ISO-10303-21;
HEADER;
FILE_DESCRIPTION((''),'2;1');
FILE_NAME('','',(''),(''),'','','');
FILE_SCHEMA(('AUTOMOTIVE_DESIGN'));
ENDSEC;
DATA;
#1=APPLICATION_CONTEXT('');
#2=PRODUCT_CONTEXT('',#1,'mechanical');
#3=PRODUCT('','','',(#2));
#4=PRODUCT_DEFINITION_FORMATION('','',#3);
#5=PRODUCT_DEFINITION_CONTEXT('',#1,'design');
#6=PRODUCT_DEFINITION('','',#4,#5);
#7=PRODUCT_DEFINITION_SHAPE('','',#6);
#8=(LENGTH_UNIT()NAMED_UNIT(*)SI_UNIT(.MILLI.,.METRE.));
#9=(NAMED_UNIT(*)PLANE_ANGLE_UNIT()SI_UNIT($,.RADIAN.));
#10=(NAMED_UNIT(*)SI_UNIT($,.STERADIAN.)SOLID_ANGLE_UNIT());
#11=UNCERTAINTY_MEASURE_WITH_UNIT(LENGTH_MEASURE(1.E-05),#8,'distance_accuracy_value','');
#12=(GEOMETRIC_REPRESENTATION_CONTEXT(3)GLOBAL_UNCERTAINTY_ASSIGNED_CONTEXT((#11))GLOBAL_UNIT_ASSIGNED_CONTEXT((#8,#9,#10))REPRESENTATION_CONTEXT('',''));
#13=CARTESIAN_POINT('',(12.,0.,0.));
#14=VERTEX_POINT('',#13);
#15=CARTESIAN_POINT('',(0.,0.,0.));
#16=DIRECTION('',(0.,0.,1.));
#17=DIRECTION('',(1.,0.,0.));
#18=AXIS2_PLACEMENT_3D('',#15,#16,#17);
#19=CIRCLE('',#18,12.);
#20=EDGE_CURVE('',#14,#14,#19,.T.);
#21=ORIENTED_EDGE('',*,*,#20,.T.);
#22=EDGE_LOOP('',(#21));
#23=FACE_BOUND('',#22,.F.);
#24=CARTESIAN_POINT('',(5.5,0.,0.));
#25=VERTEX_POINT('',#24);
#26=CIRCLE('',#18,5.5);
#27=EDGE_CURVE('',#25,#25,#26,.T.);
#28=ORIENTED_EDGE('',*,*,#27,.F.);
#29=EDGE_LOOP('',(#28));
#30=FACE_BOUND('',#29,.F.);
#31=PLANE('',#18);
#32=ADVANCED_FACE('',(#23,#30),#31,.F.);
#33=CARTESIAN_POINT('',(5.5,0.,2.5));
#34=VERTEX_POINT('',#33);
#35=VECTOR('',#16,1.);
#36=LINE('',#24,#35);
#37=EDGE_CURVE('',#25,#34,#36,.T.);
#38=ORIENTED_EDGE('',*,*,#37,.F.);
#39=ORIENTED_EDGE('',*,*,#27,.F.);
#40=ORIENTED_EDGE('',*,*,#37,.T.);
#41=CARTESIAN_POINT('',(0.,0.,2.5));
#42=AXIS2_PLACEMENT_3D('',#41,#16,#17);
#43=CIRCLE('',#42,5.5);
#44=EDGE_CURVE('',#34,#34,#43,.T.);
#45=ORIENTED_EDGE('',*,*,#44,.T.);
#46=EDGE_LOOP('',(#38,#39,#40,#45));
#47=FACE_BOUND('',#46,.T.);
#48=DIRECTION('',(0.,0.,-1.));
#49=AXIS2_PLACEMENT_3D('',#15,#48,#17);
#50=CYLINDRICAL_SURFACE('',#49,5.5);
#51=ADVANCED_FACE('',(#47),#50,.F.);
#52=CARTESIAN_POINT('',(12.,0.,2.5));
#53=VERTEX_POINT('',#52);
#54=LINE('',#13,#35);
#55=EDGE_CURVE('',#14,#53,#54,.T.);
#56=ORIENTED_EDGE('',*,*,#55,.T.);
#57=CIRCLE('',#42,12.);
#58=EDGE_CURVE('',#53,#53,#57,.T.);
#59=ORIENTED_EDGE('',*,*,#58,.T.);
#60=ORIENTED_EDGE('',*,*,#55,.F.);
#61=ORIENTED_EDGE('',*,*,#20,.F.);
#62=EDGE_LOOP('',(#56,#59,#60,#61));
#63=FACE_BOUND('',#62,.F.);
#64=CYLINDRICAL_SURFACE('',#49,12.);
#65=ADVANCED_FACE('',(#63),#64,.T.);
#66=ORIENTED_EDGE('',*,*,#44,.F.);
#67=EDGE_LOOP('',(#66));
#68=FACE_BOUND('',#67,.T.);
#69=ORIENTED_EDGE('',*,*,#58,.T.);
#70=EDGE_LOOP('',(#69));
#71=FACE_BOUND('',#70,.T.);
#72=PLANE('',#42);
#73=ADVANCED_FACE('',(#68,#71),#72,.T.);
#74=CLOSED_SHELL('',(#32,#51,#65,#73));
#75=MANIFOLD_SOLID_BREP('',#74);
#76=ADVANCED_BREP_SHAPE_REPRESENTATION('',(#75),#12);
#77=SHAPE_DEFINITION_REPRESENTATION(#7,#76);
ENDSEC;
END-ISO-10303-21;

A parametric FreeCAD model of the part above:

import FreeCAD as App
import Part
import Sketcher

V = App.Vector
Q = App.Units.Quantity

doc = App.newDocument("Part")
body = doc.addObject("PartDesign::Body", "Body")

# Sketch on XY plane
sketch1 = doc.addObject("Sketcher::SketchObject", "Sketch")
body.addObject(sketch1)
sketch1.AttachmentSupport = (doc.XY_Plane, [""])
sketch1.MapMode = "FlatFace"
sketch1.addGeometry(Part.Circle(V(0, 0, 0), V(0, 0, 1), 12), False)
sketch1.addGeometry(Part.Circle(V(0, 0, 0), V(0, 0, 1), 6), False)
sketch1.addConstraint(Sketcher.Constraint("Coincident", 0, 3, -1, 1))
sketch1.addConstraint(Sketcher.Constraint("Coincident", 1, 3, -1, 1))
sketch1.addConstraint(Sketcher.Constraint("Diameter", 0, Q("24 mm")))
sketch1.addConstraint(Sketcher.Constraint("Diameter", 1, Q("11 mm")))
pad1 = doc.addObject("PartDesign::Pad", "Pad")
body.addObject(pad1)
pad1.Profile = sketch1
pad1.Length = 2.5

doc.recompute()
